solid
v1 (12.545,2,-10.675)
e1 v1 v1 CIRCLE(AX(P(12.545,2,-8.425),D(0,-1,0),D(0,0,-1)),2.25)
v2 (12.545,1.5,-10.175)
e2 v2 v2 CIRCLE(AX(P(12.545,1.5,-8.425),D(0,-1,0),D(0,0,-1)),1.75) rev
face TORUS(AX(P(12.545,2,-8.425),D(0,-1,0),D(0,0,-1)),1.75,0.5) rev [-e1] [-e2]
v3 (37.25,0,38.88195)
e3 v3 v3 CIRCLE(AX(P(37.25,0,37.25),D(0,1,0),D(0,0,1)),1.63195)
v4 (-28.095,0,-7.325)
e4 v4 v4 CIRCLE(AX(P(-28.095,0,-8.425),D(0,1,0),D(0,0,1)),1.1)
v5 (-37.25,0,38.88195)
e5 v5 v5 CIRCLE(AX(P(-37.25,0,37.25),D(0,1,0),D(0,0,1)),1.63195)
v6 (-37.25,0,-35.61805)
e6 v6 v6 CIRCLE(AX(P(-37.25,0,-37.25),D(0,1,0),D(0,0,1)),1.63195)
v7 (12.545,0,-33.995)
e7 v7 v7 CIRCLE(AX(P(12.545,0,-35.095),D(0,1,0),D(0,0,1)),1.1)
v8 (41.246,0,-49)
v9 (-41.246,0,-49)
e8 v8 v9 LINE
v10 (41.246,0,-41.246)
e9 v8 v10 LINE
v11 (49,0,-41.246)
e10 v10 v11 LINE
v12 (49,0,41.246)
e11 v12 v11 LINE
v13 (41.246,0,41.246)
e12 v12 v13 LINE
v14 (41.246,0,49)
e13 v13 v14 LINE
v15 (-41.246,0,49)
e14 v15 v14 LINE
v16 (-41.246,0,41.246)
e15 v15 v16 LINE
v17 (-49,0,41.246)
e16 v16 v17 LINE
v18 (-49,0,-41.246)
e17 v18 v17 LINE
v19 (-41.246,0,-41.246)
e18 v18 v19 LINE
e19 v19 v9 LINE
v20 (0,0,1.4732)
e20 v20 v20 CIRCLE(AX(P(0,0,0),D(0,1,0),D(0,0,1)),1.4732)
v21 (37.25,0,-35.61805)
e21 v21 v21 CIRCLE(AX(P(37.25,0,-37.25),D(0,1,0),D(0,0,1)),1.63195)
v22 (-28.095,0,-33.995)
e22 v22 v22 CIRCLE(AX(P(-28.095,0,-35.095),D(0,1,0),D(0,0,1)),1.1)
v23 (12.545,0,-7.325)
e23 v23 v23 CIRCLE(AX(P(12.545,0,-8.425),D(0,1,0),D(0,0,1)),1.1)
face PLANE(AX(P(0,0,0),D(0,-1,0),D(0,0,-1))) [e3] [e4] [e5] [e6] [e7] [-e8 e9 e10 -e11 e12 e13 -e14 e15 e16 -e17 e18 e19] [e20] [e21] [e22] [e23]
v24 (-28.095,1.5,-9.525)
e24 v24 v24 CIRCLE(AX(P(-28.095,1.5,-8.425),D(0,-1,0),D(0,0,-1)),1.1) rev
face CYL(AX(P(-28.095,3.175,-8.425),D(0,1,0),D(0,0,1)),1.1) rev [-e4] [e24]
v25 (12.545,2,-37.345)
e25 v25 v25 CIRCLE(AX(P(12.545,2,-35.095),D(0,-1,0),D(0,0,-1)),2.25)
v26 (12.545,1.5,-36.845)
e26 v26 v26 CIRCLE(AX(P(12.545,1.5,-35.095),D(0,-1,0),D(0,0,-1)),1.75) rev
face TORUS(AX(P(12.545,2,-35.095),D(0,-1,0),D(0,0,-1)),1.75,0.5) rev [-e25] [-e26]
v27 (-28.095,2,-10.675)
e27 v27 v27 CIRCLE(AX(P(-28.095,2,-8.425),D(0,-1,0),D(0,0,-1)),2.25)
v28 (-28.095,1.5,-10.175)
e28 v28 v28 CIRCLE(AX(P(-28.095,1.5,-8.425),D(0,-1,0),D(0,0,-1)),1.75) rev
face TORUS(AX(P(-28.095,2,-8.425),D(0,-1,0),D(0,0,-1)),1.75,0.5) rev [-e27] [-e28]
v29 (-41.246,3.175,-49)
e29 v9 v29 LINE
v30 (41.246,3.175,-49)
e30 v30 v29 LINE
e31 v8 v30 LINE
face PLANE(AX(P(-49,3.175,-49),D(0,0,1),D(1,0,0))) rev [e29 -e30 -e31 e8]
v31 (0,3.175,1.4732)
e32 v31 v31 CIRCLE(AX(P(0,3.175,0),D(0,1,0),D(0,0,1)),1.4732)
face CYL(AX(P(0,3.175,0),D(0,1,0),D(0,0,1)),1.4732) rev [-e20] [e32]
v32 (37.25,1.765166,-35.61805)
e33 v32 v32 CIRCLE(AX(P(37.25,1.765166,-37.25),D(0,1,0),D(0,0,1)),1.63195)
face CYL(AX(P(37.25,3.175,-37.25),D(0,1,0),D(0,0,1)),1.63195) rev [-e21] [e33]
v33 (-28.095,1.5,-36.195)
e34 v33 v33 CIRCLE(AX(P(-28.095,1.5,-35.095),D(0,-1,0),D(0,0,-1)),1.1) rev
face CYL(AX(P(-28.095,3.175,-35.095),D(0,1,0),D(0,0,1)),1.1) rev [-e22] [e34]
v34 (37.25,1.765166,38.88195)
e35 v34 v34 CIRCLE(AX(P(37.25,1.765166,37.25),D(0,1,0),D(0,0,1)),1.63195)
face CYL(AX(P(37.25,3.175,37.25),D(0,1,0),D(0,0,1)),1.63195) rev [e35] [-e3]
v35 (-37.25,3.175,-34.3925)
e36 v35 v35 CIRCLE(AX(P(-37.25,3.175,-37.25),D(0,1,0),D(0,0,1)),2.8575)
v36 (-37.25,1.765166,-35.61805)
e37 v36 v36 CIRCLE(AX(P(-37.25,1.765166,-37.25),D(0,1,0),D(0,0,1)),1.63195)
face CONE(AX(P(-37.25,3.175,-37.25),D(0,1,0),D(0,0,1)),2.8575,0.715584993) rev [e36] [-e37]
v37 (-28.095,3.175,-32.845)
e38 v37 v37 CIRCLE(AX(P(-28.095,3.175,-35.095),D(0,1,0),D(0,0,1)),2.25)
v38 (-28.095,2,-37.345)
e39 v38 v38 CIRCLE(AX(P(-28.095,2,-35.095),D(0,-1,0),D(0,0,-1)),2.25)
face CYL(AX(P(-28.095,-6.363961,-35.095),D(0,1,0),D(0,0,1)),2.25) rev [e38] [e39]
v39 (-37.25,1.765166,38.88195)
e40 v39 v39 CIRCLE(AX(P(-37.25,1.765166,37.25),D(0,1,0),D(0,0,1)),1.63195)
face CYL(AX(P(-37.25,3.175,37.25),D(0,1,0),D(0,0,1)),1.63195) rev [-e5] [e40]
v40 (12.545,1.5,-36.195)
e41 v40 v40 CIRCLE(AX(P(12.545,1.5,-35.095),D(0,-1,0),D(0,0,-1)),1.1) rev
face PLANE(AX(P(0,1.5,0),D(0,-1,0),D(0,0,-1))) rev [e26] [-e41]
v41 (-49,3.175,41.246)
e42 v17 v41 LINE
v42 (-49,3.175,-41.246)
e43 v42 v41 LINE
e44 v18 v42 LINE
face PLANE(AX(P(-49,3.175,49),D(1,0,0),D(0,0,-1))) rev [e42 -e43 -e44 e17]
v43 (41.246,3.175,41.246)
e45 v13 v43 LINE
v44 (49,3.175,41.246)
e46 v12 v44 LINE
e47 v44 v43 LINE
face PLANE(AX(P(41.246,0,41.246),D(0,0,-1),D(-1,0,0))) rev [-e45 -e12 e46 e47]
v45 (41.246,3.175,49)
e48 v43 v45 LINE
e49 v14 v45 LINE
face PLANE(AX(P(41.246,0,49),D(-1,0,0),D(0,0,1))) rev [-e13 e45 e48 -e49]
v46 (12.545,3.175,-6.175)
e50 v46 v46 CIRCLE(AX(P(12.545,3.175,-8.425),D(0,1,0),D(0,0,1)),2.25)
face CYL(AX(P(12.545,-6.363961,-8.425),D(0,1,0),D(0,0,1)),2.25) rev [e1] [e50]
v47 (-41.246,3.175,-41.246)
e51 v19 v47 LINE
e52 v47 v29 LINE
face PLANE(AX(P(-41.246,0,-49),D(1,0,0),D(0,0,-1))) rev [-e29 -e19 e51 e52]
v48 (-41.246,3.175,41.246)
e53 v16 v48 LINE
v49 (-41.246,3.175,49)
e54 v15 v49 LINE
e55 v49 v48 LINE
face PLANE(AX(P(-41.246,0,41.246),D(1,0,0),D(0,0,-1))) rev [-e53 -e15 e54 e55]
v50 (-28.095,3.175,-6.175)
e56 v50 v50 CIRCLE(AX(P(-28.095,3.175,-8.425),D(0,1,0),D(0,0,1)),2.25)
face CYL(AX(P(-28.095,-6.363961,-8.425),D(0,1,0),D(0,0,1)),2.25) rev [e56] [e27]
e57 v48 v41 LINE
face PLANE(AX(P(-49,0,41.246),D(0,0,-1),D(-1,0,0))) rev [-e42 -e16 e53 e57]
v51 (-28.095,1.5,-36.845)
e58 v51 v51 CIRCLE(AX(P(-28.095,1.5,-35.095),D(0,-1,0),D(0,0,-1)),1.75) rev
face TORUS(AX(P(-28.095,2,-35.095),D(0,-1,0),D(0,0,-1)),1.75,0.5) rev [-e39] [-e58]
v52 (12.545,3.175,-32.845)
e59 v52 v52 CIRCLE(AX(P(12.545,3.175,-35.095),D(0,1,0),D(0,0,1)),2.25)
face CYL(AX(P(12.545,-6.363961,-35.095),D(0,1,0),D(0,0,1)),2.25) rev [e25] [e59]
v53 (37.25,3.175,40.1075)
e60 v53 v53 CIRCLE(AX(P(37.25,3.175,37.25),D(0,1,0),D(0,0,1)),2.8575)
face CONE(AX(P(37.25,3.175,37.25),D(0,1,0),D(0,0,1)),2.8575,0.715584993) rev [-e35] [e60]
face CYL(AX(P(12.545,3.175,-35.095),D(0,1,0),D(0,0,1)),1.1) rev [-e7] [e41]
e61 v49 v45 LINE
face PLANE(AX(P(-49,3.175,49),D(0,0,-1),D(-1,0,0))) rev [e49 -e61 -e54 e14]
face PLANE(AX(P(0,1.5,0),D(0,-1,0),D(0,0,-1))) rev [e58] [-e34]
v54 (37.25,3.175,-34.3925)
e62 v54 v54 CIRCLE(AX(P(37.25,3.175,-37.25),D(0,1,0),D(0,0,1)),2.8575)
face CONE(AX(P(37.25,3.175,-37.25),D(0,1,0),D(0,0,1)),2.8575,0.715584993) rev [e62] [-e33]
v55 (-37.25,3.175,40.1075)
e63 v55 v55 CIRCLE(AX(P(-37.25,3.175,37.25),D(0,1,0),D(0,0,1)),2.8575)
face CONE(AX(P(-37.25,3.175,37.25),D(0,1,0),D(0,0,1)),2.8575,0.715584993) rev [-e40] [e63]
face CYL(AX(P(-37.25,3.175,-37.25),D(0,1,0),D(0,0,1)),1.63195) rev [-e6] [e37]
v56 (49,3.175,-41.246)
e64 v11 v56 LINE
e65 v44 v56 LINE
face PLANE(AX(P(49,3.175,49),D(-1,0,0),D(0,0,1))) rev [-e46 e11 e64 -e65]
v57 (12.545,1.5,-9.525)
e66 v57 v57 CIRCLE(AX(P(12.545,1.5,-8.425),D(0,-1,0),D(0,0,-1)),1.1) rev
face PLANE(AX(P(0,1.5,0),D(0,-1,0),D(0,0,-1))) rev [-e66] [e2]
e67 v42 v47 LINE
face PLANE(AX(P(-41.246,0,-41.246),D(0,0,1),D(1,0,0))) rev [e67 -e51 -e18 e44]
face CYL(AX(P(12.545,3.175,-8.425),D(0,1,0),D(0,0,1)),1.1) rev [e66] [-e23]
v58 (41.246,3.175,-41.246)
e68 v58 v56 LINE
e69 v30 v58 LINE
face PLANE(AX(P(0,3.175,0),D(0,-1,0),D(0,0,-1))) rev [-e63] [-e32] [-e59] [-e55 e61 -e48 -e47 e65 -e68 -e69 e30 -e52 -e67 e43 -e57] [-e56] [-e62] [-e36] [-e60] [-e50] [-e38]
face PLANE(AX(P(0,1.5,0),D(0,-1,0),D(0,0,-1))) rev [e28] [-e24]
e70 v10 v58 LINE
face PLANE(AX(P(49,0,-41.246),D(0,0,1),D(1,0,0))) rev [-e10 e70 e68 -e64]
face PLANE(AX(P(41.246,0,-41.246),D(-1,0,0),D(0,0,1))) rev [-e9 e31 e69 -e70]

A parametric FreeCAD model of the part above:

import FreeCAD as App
import Part
import Sketcher
from FreeCAD import Vector
Q = App.Units.Quantity


def edges_at(feature, points):
    """Names of the edges that pass closest to the given points."""
    edges = feature.Shape.Edges
    near = lambda p: min(range(len(edges)), key=lambda i: edges[i].distToShape(Part.Vertex(*p))[0])
    return sorted({f"Edge{near(p) + 1}" for p in points})


def add_polygon(sketch, points):
    """Adds a closed chain of lines whose ends are joined by coincident constraints."""
    first, n = sketch.GeometryCount, len(points)
    for a, b in zip(points, points[1:] + points[:1]):
        sketch.addGeometry(Part.LineSegment(App.Vector(*a, 0), App.Vector(*b, 0)), False)
    for i in range(n):
        sketch.addConstraint(Sketcher.Constraint("Coincident", first + i, 2, first + (i + 1) % n, 1))

doc = App.newDocument("Part")
body = doc.addObject("PartDesign::Body", "Body")

sketch1 = body.newObject("Sketcher::SketchObject", "Sketch")
sketch1.AttachmentSupport = (doc.getObject("XZ_Plane"), [""])
sketch1.MapMode = "FlatFace"
add_polygon(sketch1, [(-49, -49), (-49, 49), (49, 49), (49, -49)])
sketch1.addConstraint([
    Sketcher.Constraint("Vertical", 0),
    Sketcher.Constraint("Horizontal", 1),
    Sketcher.Constraint("Vertical", 2),
    Sketcher.Constraint("Horizontal", 3),
    Sketcher.Constraint("Symmetric", 0, 2, 2, 2, -1, 1),
    Sketcher.Constraint("Equal", 3, 0),
    Sketcher.Constraint("DistanceX", 1, 1, 1, 2, Q("98 mm")),
])
pad1 = body.newObject("PartDesign::Pad", "Pad")
pad1.Profile = sketch1
pad1.Length = 3.175
pad1.Reversed = True

sketch2 = body.newObject("Sketcher::SketchObject", "Sketch001")
sketch2.AttachmentSupport = (doc.getObject("XZ_Plane"), [""])
sketch2.MapMode = "FlatFace"
sketch2.AttachmentOffset = App.Placement(Vector(0, 0, -3.175), App.Rotation())
add_polygon(sketch2, [(41.5, -49), (41.5, -41.5), (49, -41.5), (49, -49)])
add_polygon(sketch2, [(-49, -49), (-49, -41.5), (-41.5, -41.5), (-41.5, -49)])
add_polygon(sketch2, [(41.5, 41.5), (41.5, 49), (49, 49), (49, 41.5)])
add_polygon(sketch2, [(-49, 41.5), (-49, 49), (-41.5, 49), (-41.5, 41.5)])
sketch2.addConstraint([
    Sketcher.Constraint("Vertical", 0),
    Sketcher.Constraint("Horizontal", 1),
    Sketcher.Constraint("Vertical", 2),
    Sketcher.Constraint("Horizontal", 3),
    Sketcher.Constraint("Vertical", 4),
    Sketcher.Constraint("Horizontal", 5),
    Sketcher.Constraint("Vertical", 6),
    Sketcher.Constraint("Horizontal", 7),
    Sketcher.Constraint("Vertical", 8),
    Sketcher.Constraint("Horizontal", 9),
    Sketcher.Constraint("Vertical", 10),
    Sketcher.Constraint("Horizontal", 11),
    Sketcher.Constraint("Vertical", 12),
    Sketcher.Constraint("Horizontal", 13),
    Sketcher.Constraint("Vertical", 14),
    Sketcher.Constraint("Horizontal", 15),
    Sketcher.Constraint("Symmetric", 6, 2, 8, 2, -1, 1),
    Sketcher.Constraint("Symmetric", 4, 2, 10, 2, -1, 1),
    Sketcher.Constraint("Symmetric", 2, 2, 12, 2, -1, 1),
    Sketcher.Constraint("Symmetric", 0, 2, 14, 2, -1, 1),
    Sketcher.Constraint("Symmetric", 1, 2, 4, 2, -2),
    Sketcher.Constraint("Symmetric", 3, 2, 6, 2, -2),
    Sketcher.Constraint("Equal", 15, 0),
    Sketcher.Constraint("DistanceX", 1, 1, 1, 2, Q("7.5 mm")),
    Sketcher.Constraint("DistanceX", -1, 1, 1, 2, Q("49 mm")),
    Sketcher.Constraint("DistanceY", 2, 2, -1, 1, Q("49 mm")),
])
pocket1 = body.newObject("PartDesign::Pocket", "Pocket")
pocket1.Profile = sketch2
pocket1.Type = "ThroughAll"
pocket1.Reversed = True

sketch3 = body.newObject("Sketcher::SketchObject", "Sketch002")
sketch3.AttachmentSupport = (doc.getObject("XZ_Plane"), [""])
sketch3.MapMode = "FlatFace"
sketch3.AttachmentOffset = App.Placement(Vector(0, 0, -3.175), App.Rotation())
sketch3.addGeometry(Part.Circle(Vector(0, 0, 0), Vector(0, 0, 1), 1.4732), False)
sketch3.addConstraint([
    Sketcher.Constraint("Coincident", 0, 3, -1, 1),
    Sketcher.Constraint("Diameter", 0, Q("2.9464 mm")),
])
doc.recompute()
hole = body.newObject("PartDesign::Hole", "Hole")
hole.Profile = sketch3
hole.ThreadType = "None"
hole.Diameter = 2.9464
hole.DepthType = "ThroughAll"
hole.Reversed = True

sketch4 = body.newObject("Sketcher::SketchObject", "Sketch003")
sketch4.AttachmentSupport = (doc.getObject("XZ_Plane"), [""])
sketch4.MapMode = "FlatFace"
sketch4.AttachmentOffset = App.Placement(Vector(0, 0, -3.175), App.Rotation())
sketch4.addGeometry([
    Part.Circle(Vector(-28.095, -35.095, 0), Vector(0, 0, 1), 1.1),
    Part.Circle(Vector(12.545, -35.095, 0), Vector(0, 0, 1), 1.1),
    Part.Circle(Vector(12.545, -8.425, 0), Vector(0, 0, 1), 1.1),
    Part.Circle(Vector(-28.095, -8.425, 0), Vector(0, 0, 1), 1.1),
], False)
sketch4.addConstraint([
    Sketcher.Constraint("Equal", 0, 1),
    Sketcher.Constraint("Equal", 1, 2),
    Sketcher.Constraint("Equal", 2, 3),
    Sketcher.Constraint("Horizontal", 0, 3, 1, 3),
    Sketcher.Constraint("Horizontal", 2, 3, 3, 3),
    Sketcher.Constraint("Vertical", 1, 3, 2, 3),
    Sketcher.Constraint("Vertical", 0, 3, 3, 3),
    Sketcher.Constraint("Diameter", 0, Q("2.2 mm")),
    Sketcher.Constraint("DistanceX", 0, 3, 1, 3, Q("40.64 mm")),
    Sketcher.Constraint("DistanceY", 1, 3, 2, 3, Q("26.67 mm")),
    Sketcher.Constraint("DistanceX", 0, 3, -1, 1, Q("28.095 mm")),
    Sketcher.Constraint("DistanceY", 0, 3, -1, 1, Q("35.095 mm")),
])
doc.recompute()
hole2 = body.newObject("PartDesign::Hole", "Hole001")
hole2.Profile = sketch4
hole2.ThreadType = "None"
hole2.Diameter = 2.2
hole2.DepthType = "ThroughAll"
hole2.Reversed = True

sketch5 = body.newObject("Sketcher::SketchObject", "Sketch004")
sketch5.AttachmentSupport = (doc.getObject("YZ_Plane"), [""])
sketch5.MapMode = "FlatFace"
sketch5.AttachmentOffset = App.Placement(Vector(0, 0, 37.25), App.Rotation())
add_polygon(sketch5, [(0, 37.25), (3.175, 37.25), (3.175, 40.1075), (1.765166, 38.88195), (0, 38.88195)])
sketch5.addGeometry(Part.LineSegment(Vector(3.175, 37.25, 0), Vector(0, 37.25, 0)), True)
sketch5.addConstraint([
    Sketcher.Constraint("Horizontal", 0),
    Sketcher.Constraint("Vertical", 1),
    Sketcher.Constraint("Horizontal", 3),
    Sketcher.Constraint("Vertical", 4),
    Sketcher.Constraint("Horizontal", 5),
    Sketcher.Constraint("Coincident", 5, 1, 0, 2),
    Sketcher.Constraint("PointOnObject", 3, 2, -2),
    Sketcher.Constraint("PointOnObject", 5, 2, -2),
    Sketcher.Constraint("Angle", 2, Q("-139 deg")),
    Sketcher.Constraint("DistanceX", 0, 1, 0, 2, Q("3.175 mm")),
    Sketcher.Constraint("DistanceY", -1, 1, 0, 2, Q("37.25 mm")),
    Sketcher.Constraint("DistanceY", 1, 1, 1, 2, Q("2.8575 mm")),
    Sketcher.Constraint("DistanceY", 4, 2, 4, 1, Q("1.63195 mm")),
])
groove = body.newObject("PartDesign::Groove", "Groove")
groove.Profile = sketch5
groove.ReferenceAxis = (sketch5, ["Axis0"])
groove.Angle = 360
doc.recompute()

linearpattern = body.newObject("PartDesign::LinearPattern", "LinearPattern")
linearpattern.Originals = [groove]
linearpattern.Direction = (doc.getObject("X_Axis"), [""])
linearpattern.Mode = "offset"
linearpattern.Offset = 74.5
linearpattern.Occurrences = 2
linearpattern.Reversed = True
body.Tip = linearpattern
doc.recompute()

datumline = body.newObject("PartDesign::Line", "DatumLine")
datumline.Placement = App.Placement(Vector(0, 0, 0), App.Rotation(Vector(0, 0, 1), Vector(-0.707106781, 0, -0.707106781)))
linearpattern2 = body.newObject("PartDesign::LinearPattern", "LinearPattern001")
linearpattern2.Originals = [groove]
linearpattern2.Direction = (datumline, [""])
linearpattern2.Mode = "offset"
linearpattern2.Offset = 105.35891
linearpattern2.Occurrences = 2
body.Tip = linearpattern2
doc.recompute()

linearpattern3 = body.newObject("PartDesign::LinearPattern", "LinearPattern002")
linearpattern3.Originals = [groove]
linearpattern3.Direction = (doc.getObject("Z_Axis"), [""])
linearpattern3.Mode = "offset"
linearpattern3.Offset = 74.5
linearpattern3.Occurrences = 2
linearpattern3.Reversed = True
body.Tip = linearpattern3

sketch6 = body.newObject("Sketcher::SketchObject", "Sketch005")
sketch6.AttachmentSupport = (doc.getObject("XZ_Plane"), [""])
sketch6.MapMode = "FlatFace"
sketch6.AttachmentOffset = App.Placement(Vector(0, 0, -3.175), App.Rotation())
add_polygon(sketch6, [(-41.246, 41.246), (-49, 41.246), (-49, 41.5), (-41.5, 41.5), (-41.5, 49), (-41.246, 49)])
add_polygon(sketch6, [(41.246, 41.246), (41.246, 49), (41.5, 49), (41.5, 41.5), (49, 41.5), (49, 41.246)])
add_polygon(sketch6, [(41.246, -41.246), (49, -41.246), (49, -41.5), (41.5, -41.5), (41.5, -49), (41.246, -49)])
add_polygon(sketch6, [(-41.246, -41.246), (-41.246, -49), (-41.5, -49), (-41.5, -41.5), (-49, -41.5), (-49, -41.246)])
sketch6.addConstraint([
    Sketcher.Constraint("Horizontal", 0),
    Sketcher.Constraint("Vertical", 1),
    Sketcher.Constraint("Horizontal", 2),
    Sketcher.Constraint("Vertical", 3),
    Sketcher.Constraint("Horizontal", 4),
    Sketcher.Constraint("Vertical", 5),
    Sketcher.Constraint("Vertical", 6),
    Sketcher.Constraint("Horizontal", 7),
    Sketcher.Constraint("Vertical", 8),
    Sketcher.Constraint("Horizontal", 9),
    Sketcher.Constraint("Vertical", 10),
    Sketcher.Constraint("Horizontal", 11),
    Sketcher.Constraint("Horizontal", 12),
    Sketcher.Constraint("Vertical", 13),
    Sketcher.Constraint("Horizontal", 14),
    Sketcher.Constraint("Vertical", 15),
    Sketcher.Constraint("Horizontal", 16),
    Sketcher.Constraint("Vertical", 17),
    Sketcher.Constraint("Vertical", 18),
    Sketcher.Constraint("Horizontal", 19),
    Sketcher.Constraint("Vertical", 20),
    Sketcher.Constraint("Horizontal", 21),
    Sketcher.Constraint("Vertical", 22),
    Sketcher.Constraint("Horizontal", 23),
    Sketcher.Constraint("Symmetric", 0, 2, 12, 2, -1, 1),
    Sketcher.Constraint("Symmetric", 2, 2, 14, 2, -1, 1),
    Sketcher.Constraint("Symmetric", 4, 2, 16, 2, -1, 1),
    Sketcher.Constraint("Symmetric", 6, 2, 18, 2, -1, 1),
    Sketcher.Constraint("Symmetric", 8, 2, 20, 2, -1, 1),
    Sketcher.Constraint("Symmetric", 10, 2, 22, 2, -1, 1),
    Sketcher.Constraint("Symmetric", 4, 2, 6, 2, -2),
    Sketcher.Constraint("Symmetric", 2, 2, 8, 2, -2),
    Sketcher.Constraint("Symmetric", 0, 2, 10, 2, -2),
    Sketcher.Constraint("Equal", 19, 1),
    Sketcher.Constraint("Equal", 21, 3),
    Sketcher.Constraint("DistanceX", 2, 1, 2, 2, Q("7.5 mm")),
    Sketcher.Constraint("DistanceX", 0, 2, -1, 1, Q("49 mm")),
    Sketcher.Constraint("DistanceY", -1, 1, 3, 2, Q("49 mm")),
    Sketcher.Constraint("DistanceX", 0, 2, 0, 1, Q("7.754 mm")),
])
pocket2 = body.newObject("PartDesign::Pocket", "Pocket001")
pocket2.Profile = sketch6
pocket2.Type = "ThroughAll"
pocket2.Reversed = True

sketch7 = body.newObject("Sketcher::SketchObject", "Sketch006")
sketch7.AttachmentSupport = (doc.getObject("XZ_Plane"), [""])
sketch7.MapMode = "FlatFace"
sketch7.AttachmentOffset = App.Placement(Vector(0, 0, -3.175), App.Rotation())
sketch7.addGeometry([
    Part.Circle(Vector(-28.095, -35.095, 0), Vector(0, 0, 1), 2.25),
    Part.Circle(Vector(12.545, -35.095, 0), Vector(0, 0, 1), 2.25),
    Part.Circle(Vector(12.545, -8.425, 0), Vector(0, 0, 1), 2.25),
    Part.Circle(Vector(-28.095, -8.425, 0), Vector(0, 0, 1), 2.25),
], False)
sketch7.addConstraint([
    Sketcher.Constraint("Equal", 0, 1),
    Sketcher.Constraint("Equal", 1, 2),
    Sketcher.Constraint("Equal", 2, 3),
    Sketcher.Constraint("Horizontal", 0, 3, 1, 3),
    Sketcher.Constraint("Horizontal", 2, 3, 3, 3),
    Sketcher.Constraint("Vertical", 1, 3, 2, 3),
    Sketcher.Constraint("Vertical", 0, 3, 3, 3),
    Sketcher.Constraint("Diameter", 0, Q("4.5 mm")),
    Sketcher.Constraint("DistanceX", 0, 3, 1, 3, Q("40.64 mm")),
    Sketcher.Constraint("DistanceY", 1, 3, 2, 3, Q("26.67 mm")),
    Sketcher.Constraint("DistanceX", 0, 3, -1, 1, Q("28.095 mm")),
    Sketcher.Constraint("DistanceY", 0, 3, -1, 1, Q("35.095 mm")),
])
pocket3 = body.newObject("PartDesign::Pocket", "Pocket002")
pocket3.Profile = sketch7
pocket3.Length = 1.675
pocket3.Reversed = True
doc.recompute()

fillet = body.newObject("PartDesign::Fillet", "Fillet")
fillet.Base = (pocket3, edges_at(pocket3, [
    (-28.095, 1.5, -37.345),
    (12.545, 1.5, -37.345),
    (12.545, 1.5, -10.675),
    (-28.095, 1.5, -10.675),
]))
fillet.Radius = 0.5

doc.recompute()
